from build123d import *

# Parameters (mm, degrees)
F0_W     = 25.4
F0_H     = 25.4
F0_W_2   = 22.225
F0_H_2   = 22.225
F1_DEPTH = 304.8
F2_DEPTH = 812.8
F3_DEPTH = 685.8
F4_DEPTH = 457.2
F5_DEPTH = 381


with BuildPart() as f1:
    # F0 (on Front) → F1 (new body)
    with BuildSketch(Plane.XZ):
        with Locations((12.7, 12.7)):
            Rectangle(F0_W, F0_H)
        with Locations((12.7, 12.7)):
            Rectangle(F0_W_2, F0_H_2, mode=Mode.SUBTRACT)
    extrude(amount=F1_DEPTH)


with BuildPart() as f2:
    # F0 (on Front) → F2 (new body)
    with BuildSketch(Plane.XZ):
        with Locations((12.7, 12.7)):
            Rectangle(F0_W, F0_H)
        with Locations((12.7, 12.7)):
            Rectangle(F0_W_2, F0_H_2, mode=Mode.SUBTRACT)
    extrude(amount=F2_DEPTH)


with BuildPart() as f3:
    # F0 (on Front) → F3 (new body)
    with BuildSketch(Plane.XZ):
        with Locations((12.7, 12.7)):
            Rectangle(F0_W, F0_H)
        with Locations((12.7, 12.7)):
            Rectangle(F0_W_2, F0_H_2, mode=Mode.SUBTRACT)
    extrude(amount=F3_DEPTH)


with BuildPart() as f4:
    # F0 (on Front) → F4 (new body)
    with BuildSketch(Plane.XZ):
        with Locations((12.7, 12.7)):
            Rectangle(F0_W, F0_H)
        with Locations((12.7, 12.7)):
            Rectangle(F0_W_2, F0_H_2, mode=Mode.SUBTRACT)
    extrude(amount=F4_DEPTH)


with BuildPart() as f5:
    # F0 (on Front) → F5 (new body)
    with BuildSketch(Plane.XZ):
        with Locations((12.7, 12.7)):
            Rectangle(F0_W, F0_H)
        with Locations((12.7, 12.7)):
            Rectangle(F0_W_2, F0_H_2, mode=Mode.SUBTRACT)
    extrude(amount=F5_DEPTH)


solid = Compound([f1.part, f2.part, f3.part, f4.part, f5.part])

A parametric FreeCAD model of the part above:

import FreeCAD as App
import Part
import Sketcher
Q = App.Units.Quantity


def add_polygon(sketch, points):
    """Adds a closed chain of lines whose ends are joined by coincident constraints."""
    first, n = sketch.GeometryCount, len(points)
    for a, b in zip(points, points[1:] + points[:1]):
        sketch.addGeometry(Part.LineSegment(App.Vector(*a, 0), App.Vector(*b, 0)), False)
    for i in range(n):
        sketch.addConstraint(Sketcher.Constraint("Coincident", first + i, 2, first + (i + 1) % n, 1))

doc = App.newDocument("Part")
body = doc.addObject("PartDesign::Body", "Body")

# Sketch on XZ plane
sketch1 = doc.addObject("Sketcher::SketchObject", "Sketch")
body.addObject(sketch1)
sketch1.AttachmentSupport = (doc.XZ_Plane, [""])
sketch1.MapMode = "FlatFace"
add_polygon(sketch1, [(0, 25), (0, 0), (25, 0), (25, 25)])  # lines 0-3
add_polygon(sketch1, [(24, 2), (2, 2), (2, 24), (24, 24)])  # lines 4-7
sketch1.addConstraint([
    Sketcher.Constraint("Vertical", 0),
    Sketcher.Constraint("Horizontal", 1),
    Sketcher.Constraint("Vertical", 2),
    Sketcher.Constraint("Horizontal", 3),
    Sketcher.Constraint("Horizontal", 4),
    Sketcher.Constraint("Vertical", 5),
    Sketcher.Constraint("Horizontal", 6),
    Sketcher.Constraint("Vertical", 7),
    Sketcher.Constraint("Coincident", 0, 2, -1, 1),
    Sketcher.Constraint("Equal", 3, 0),
    Sketcher.Constraint("Equal", 6, 5),
    Sketcher.Constraint("DistanceX", 1, 1, 1, 2, Q("1 in")),
    Sketcher.Constraint("DistanceX", 4, 2, 4, 1, Q("0.875 in")),
    Sketcher.Constraint("DistanceX", -1, 1, 4, 2, Q("0.0625 in")),
    Sketcher.Constraint("DistanceY", -1, 1, 4, 2, Q("0.0625 in")),
])
pad1 = doc.addObject("PartDesign::Pad", "Pad")
body.addObject(pad1)
pad1.Profile = sketch1
pad1.Length = Q("12 in")
body2 = doc.addObject("PartDesign::Body", "Body001")

# Sketch on XZ plane
sketch2 = doc.addObject("Sketcher::SketchObject", "Sketch001")
body2.addObject(sketch2)
sketch2.AttachmentSupport = (doc.getObject("XZ_Plane001"), [""])
sketch2.MapMode = "FlatFace"
add_polygon(sketch2, [(0, 25), (0, 0), (25, 0), (25, 25)])  # lines 0-3
add_polygon(sketch2, [(24, 2), (2, 2), (2, 24), (24, 24)])  # lines 4-7
sketch2.addConstraint([
    Sketcher.Constraint("Vertical", 0),
    Sketcher.Constraint("Horizontal", 1),
    Sketcher.Constraint("Vertical", 2),
    Sketcher.Constraint("Horizontal", 3),
    Sketcher.Constraint("Horizontal", 4),
    Sketcher.Constraint("Vertical", 5),
    Sketcher.Constraint("Horizontal", 6),
    Sketcher.Constraint("Vertical", 7),
    Sketcher.Constraint("Coincident", 0, 2, -1, 1),
    Sketcher.Constraint("Equal", 3, 0),
    Sketcher.Constraint("Equal", 6, 5),
    Sketcher.Constraint("DistanceX", 1, 1, 1, 2, Q("1 in")),
    Sketcher.Constraint("DistanceX", 4, 2, 4, 1, Q("0.875 in")),
    Sketcher.Constraint("DistanceX", -1, 1, 4, 2, Q("0.0625 in")),
    Sketcher.Constraint("DistanceY", -1, 1, 4, 2, Q("0.0625 in")),
])
pad2 = doc.addObject("PartDesign::Pad", "Pad001")
body2.addObject(pad2)
pad2.Profile = sketch2
pad2.Length = Q("32 in")
body3 = doc.addObject("PartDesign::Body", "Body002")

# Sketch on XZ plane
sketch3 = doc.addObject("Sketcher::SketchObject", "Sketch002")
body3.addObject(sketch3)
sketch3.AttachmentSupport = (doc.getObject("XZ_Plane002"), [""])
sketch3.MapMode = "FlatFace"
add_polygon(sketch3, [(0, 25), (0, 0), (25, 0), (25, 25)])  # lines 0-3
add_polygon(sketch3, [(24, 2), (2, 2), (2, 24), (24, 24)])  # lines 4-7
sketch3.addConstraint([
    Sketcher.Constraint("Vertical", 0),
    Sketcher.Constraint("Horizontal", 1),
    Sketcher.Constraint("Vertical", 2),
    Sketcher.Constraint("Horizontal", 3),
    Sketcher.Constraint("Horizontal", 4),
    Sketcher.Constraint("Vertical", 5),
    Sketcher.Constraint("Horizontal", 6),
    Sketcher.Constraint("Vertical", 7),
    Sketcher.Constraint("Coincident", 0, 2, -1, 1),
    Sketcher.Constraint("Equal", 3, 0),
    Sketcher.Constraint("Equal", 6, 5),
    Sketcher.Constraint("DistanceX", 1, 1, 1, 2, Q("1 in")),
    Sketcher.Constraint("DistanceX", 4, 2, 4, 1, Q("0.875 in")),
    Sketcher.Constraint("DistanceX", -1, 1, 4, 2, Q("0.0625 in")),
    Sketcher.Constraint("DistanceY", -1, 1, 4, 2, Q("0.0625 in")),
])
pad3 = doc.addObject("PartDesign::Pad", "Pad002")
body3.addObject(pad3)
pad3.Profile = sketch3
pad3.Length = Q("27 in")
body4 = doc.addObject("PartDesign::Body", "Body003")

# Sketch on XZ plane
sketch4 = doc.addObject("Sketcher::SketchObject", "Sketch003")
body4.addObject(sketch4)
sketch4.AttachmentSupport = (doc.getObject("XZ_Plane003"), [""])
sketch4.MapMode = "FlatFace"
add_polygon(sketch4, [(0, 25), (0, 0), (25, 0), (25, 25)])  # lines 0-3
add_polygon(sketch4, [(24, 2), (2, 2), (2, 24), (24, 24)])  # lines 4-7
sketch4.addConstraint([
    Sketcher.Constraint("Vertical", 0),
    Sketcher.Constraint("Horizontal", 1),
    Sketcher.Constraint("Vertical", 2),
    Sketcher.Constraint("Horizontal", 3),
    Sketcher.Constraint("Horizontal", 4),
    Sketcher.Constraint("Vertical", 5),
    Sketcher.Constraint("Horizontal", 6),
    Sketcher.Constraint("Vertical", 7),
    Sketcher.Constraint("Coincident", 0, 2, -1, 1),
    Sketcher.Constraint("Equal", 3, 0),
    Sketcher.Constraint("Equal", 6, 5),
    Sketcher.Constraint("DistanceX", 1, 1, 1, 2, Q("1 in")),
    Sketcher.Constraint("DistanceX", 4, 2, 4, 1, Q("0.875 in")),
    Sketcher.Constraint("DistanceX", -1, 1, 4, 2, Q("0.0625 in")),
    Sketcher.Constraint("DistanceY", -1, 1, 4, 2, Q("0.0625 in")),
])
pad4 = doc.addObject("PartDesign::Pad", "Pad003")
body4.addObject(pad4)
pad4.Profile = sketch4
pad4.Length = Q("18 in")
body5 = doc.addObject("PartDesign::Body", "Body004")

# Sketch on XZ plane
sketch5 = doc.addObject("Sketcher::SketchObject", "Sketch004")
body5.addObject(sketch5)
sketch5.AttachmentSupport = (doc.getObject("XZ_Plane004"), [""])
sketch5.MapMode = "FlatFace"
add_polygon(sketch5, [(0, 25), (0, 0), (25, 0), (25, 25)])  # lines 0-3
add_polygon(sketch5, [(24, 2), (2, 2), (2, 24), (24, 24)])  # lines 4-7
sketch5.addConstraint([
    Sketcher.Constraint("Vertical", 0),
    Sketcher.Constraint("Horizontal", 1),
    Sketcher.Constraint("Vertical", 2),
    Sketcher.Constraint("Horizontal", 3),
    Sketcher.Constraint("Horizontal", 4),
    Sketcher.Constraint("Vertical", 5),
    Sketcher.Constraint("Horizontal", 6),
    Sketcher.Constraint("Vertical", 7),
    Sketcher.Constraint("Coincident", 0, 2, -1, 1),
    Sketcher.Constraint("Equal", 3, 0),
    Sketcher.Constraint("Equal", 6, 5),
    Sketcher.Constraint("DistanceX", 1, 1, 1, 2, Q("1 in")),
    Sketcher.Constraint("DistanceX", 4, 2, 4, 1, Q("0.875 in")),
    Sketcher.Constraint("DistanceX", -1, 1, 4, 2, Q("0.0625 in")),
    Sketcher.Constraint("DistanceY", -1, 1, 4, 2, Q("0.0625 in")),
])
pad5 = doc.addObject("PartDesign::Pad", "Pad004")
body5.addObject(pad5)
pad5.Profile = sketch5
pad5.Length = Q("15 in")

doc.recompute()
